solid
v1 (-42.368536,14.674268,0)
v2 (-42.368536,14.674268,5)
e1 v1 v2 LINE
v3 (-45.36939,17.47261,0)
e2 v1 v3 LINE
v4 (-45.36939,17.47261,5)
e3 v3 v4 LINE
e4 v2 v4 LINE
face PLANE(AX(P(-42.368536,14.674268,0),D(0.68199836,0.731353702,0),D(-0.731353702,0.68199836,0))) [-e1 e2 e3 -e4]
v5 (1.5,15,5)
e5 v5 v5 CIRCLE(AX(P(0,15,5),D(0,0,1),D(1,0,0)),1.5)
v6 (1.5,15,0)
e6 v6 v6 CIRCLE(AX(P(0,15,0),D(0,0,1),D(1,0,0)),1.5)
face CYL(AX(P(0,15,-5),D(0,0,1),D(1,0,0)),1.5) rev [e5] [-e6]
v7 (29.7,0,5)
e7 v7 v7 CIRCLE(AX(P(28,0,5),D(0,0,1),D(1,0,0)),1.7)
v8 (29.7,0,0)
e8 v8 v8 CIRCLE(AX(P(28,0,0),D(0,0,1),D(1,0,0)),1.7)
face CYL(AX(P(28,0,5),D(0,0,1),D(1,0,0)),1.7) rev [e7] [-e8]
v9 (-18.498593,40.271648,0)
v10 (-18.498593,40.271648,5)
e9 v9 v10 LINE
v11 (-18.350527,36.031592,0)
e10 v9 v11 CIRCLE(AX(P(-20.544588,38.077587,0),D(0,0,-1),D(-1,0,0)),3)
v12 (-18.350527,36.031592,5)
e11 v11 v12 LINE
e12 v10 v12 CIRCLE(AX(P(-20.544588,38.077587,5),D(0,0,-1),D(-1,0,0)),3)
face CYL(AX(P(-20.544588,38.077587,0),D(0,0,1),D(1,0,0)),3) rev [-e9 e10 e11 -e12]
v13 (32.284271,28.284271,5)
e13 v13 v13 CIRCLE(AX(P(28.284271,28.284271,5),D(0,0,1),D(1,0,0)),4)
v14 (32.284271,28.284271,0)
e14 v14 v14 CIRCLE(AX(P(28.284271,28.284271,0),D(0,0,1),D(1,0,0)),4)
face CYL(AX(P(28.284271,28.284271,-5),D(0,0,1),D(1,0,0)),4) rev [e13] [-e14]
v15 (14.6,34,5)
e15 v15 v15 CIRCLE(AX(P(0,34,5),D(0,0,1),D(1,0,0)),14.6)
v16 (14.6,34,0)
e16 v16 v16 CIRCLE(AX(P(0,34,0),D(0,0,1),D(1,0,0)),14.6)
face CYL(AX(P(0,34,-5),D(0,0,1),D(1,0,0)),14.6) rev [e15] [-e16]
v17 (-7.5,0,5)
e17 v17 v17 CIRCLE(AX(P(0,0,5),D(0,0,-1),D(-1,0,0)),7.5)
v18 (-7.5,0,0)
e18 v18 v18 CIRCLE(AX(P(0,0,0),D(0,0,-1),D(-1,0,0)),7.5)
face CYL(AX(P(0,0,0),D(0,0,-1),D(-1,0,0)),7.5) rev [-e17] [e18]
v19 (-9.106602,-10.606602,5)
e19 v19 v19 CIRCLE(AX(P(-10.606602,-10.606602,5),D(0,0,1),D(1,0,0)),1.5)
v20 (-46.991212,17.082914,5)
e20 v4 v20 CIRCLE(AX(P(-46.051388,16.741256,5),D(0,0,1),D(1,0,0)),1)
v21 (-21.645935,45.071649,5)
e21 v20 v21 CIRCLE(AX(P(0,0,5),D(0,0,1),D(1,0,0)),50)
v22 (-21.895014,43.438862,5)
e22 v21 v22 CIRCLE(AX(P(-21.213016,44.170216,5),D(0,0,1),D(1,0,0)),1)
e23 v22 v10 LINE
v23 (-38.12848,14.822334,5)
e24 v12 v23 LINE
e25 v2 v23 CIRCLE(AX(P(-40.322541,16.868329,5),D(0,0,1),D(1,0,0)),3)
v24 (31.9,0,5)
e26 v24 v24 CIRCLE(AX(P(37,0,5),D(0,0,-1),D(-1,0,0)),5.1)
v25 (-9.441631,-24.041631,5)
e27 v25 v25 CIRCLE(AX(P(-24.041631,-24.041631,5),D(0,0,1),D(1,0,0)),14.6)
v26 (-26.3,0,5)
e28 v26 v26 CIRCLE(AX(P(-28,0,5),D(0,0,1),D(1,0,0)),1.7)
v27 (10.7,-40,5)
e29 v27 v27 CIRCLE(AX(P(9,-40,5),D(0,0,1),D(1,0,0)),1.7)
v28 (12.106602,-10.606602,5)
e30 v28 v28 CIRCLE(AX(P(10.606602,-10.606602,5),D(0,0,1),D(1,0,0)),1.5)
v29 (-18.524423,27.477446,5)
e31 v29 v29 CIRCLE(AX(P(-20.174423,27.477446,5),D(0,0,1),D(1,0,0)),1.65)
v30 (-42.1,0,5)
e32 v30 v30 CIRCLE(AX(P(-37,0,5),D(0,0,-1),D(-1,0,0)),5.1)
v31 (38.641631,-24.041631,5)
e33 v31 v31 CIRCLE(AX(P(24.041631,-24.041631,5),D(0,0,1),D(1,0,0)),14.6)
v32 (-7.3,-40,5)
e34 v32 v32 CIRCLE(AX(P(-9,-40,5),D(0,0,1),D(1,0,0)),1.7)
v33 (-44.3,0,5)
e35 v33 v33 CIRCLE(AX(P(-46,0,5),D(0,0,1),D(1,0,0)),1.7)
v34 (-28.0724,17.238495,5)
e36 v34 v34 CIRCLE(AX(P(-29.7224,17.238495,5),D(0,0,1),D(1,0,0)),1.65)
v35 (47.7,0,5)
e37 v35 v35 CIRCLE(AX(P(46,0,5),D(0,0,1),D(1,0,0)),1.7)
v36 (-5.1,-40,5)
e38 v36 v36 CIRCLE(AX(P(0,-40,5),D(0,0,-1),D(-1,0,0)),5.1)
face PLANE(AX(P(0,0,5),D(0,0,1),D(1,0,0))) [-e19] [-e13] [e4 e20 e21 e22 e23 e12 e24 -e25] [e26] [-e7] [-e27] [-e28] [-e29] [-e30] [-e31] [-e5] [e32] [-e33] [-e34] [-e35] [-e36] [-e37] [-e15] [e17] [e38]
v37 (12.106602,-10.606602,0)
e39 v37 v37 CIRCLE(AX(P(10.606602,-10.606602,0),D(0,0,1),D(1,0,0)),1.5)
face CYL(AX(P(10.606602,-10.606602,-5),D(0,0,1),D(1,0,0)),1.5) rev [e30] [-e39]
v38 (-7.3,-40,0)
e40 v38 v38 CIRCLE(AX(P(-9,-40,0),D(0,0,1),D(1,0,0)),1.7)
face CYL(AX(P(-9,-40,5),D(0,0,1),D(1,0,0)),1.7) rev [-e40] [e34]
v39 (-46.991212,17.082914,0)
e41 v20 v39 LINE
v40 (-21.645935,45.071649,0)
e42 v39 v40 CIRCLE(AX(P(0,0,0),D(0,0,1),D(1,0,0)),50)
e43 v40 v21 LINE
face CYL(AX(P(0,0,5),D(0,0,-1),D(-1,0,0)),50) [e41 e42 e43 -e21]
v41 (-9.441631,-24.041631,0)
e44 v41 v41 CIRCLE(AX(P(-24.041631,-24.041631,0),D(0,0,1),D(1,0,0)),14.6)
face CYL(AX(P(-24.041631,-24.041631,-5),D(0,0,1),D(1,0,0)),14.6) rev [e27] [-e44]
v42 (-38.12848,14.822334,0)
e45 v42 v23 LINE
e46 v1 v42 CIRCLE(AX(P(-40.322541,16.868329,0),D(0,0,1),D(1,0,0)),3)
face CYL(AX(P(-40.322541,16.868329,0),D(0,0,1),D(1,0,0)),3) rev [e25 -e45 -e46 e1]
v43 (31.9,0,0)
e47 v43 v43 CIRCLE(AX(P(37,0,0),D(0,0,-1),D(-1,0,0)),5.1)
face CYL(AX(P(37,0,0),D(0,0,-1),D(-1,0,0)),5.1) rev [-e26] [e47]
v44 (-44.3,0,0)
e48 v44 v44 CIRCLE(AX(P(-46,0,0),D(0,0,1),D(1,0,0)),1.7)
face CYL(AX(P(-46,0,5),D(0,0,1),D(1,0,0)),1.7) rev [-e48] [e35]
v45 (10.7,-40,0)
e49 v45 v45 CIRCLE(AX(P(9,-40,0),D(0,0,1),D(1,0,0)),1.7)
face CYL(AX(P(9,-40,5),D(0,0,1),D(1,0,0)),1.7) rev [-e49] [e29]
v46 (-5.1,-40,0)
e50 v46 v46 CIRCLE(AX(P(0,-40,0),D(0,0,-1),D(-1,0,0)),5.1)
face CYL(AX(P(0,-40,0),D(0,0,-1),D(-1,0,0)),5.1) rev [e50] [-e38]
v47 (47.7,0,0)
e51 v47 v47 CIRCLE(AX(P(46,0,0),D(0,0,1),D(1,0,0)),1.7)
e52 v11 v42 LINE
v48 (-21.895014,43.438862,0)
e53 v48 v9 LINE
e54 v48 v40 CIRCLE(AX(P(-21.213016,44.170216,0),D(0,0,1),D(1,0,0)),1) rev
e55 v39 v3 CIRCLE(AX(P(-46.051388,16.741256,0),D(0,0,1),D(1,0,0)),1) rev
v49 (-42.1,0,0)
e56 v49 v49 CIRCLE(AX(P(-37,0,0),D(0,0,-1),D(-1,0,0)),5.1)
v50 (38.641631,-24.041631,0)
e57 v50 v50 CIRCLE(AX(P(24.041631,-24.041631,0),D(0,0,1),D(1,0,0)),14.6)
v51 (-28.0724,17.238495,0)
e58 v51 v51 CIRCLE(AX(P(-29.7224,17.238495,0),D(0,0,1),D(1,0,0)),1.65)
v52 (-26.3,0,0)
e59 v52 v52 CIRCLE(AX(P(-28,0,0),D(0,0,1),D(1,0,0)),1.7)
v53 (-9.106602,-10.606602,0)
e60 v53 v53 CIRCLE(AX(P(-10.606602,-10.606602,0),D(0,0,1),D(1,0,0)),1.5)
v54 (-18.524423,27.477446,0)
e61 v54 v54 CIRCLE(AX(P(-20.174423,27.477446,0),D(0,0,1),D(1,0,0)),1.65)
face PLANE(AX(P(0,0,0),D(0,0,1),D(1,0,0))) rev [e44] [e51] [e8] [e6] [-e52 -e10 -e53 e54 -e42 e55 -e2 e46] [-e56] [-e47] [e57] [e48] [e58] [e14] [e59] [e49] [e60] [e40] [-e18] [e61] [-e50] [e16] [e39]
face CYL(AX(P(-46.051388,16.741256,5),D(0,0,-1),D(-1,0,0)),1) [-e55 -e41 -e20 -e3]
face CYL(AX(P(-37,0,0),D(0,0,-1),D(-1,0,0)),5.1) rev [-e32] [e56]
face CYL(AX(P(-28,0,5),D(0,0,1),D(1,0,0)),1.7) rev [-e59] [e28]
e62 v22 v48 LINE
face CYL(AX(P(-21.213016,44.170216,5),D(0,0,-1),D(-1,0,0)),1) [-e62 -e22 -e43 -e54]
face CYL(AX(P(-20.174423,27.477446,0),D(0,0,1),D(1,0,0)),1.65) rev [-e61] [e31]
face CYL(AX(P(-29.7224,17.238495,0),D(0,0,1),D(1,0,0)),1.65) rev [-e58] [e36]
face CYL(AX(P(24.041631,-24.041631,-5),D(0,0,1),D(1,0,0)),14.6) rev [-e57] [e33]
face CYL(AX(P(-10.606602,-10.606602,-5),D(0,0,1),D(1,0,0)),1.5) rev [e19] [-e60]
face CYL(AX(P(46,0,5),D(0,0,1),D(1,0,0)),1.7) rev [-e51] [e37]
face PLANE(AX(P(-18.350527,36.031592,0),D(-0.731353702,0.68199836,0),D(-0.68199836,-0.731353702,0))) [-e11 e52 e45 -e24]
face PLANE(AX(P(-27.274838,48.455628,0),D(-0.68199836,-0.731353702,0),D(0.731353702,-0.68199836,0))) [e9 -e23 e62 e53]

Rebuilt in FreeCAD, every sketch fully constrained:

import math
import FreeCAD as App
import Part
import Sketcher
Q = App.Units.Quantity


def edges_at(feature, points):
    """Names of the edges that pass closest to the given points."""
    edges = feature.Shape.Edges
    near = lambda p: min(range(len(edges)), key=lambda i: edges[i].distToShape(Part.Vertex(*p))[0])
    return sorted({f"Edge{near(p) + 1}" for p in points})

doc = App.newDocument("Part")
params = doc.addObject("Spreadsheet::Sheet", "Params")
for row, (alias, value) in enumerate([
    ("sketch1_diameter", "100 mm"),
    ("pad1_length", "5 mm"),
    ("sketch2_diameter", "15 mm"),
    ("hole_diameter", "15 mm"),
    ("sketch3_diameter", "10.2 mm"),
    ("hole2_diameter", "10.2 mm"),
    ("sketch4_diameter", "3.4 mm"),
    ("hole3_diameter", "3.4 mm"),
    ("sketch5_diameter", "3 mm"),
    ("sketch5_diameter2", "29.2 mm"),
    ("pocket1_length", "10 mm"),
    ("sketch6_radius", "3 mm"),
    ("sketch6_diameter", "3.3 mm"),
    ("sketch6_length", "12 mm"),
    ("sketch6_length2", "35 mm"),
    ("pocket2_length", "5 mm"),
    ("sketch7_diameter", "8 mm"),
    ("pocket3_length", "10 mm"),
    ("fillet_radius", "1 mm"),
], start=1):
    params.set(f"A{row}", alias)
    params.set(f"B{row}", "=" + value)
    params.setAlias(f"B{row}", alias)

body = doc.addObject("PartDesign::Body", "Body")

sketch1 = body.newObject("Sketcher::SketchObject", "Sketch")
sketch1.AttachmentSupport = (doc.getObject("XY_Plane"), [""])
sketch1.MapMode = "FlatFace"
sketch1.addGeometry(Part.Circle(App.Vector(0, 0, 0), App.Vector(0, 0, 1), 50), False)
sketch1.addConstraint(Sketcher.Constraint("Coincident", 0, 3, -1, 1))
sketch1.addConstraint(Sketcher.Constraint("Diameter", 0, Q("100 mm")))
sketch1.setExpression("Constraints[1]", "Params.sketch1_diameter")
pad1 = body.newObject("PartDesign::Pad", "Pad")
pad1.Profile = sketch1
pad1.setExpression("Length", "Params.pad1_length")

sketch2 = body.newObject("Sketcher::SketchObject", "Sketch001")
sketch2.AttachmentSupport = (doc.getObject("XY_Plane"), [""])
sketch2.MapMode = "FlatFace"
sketch2.addGeometry(Part.Circle(App.Vector(0, 0, 0), App.Vector(0, 0, 1), 8), False)
sketch2.addConstraint(Sketcher.Constraint("Coincident", 0, 3, -1, 1))
sketch2.addConstraint(Sketcher.Constraint("Diameter", 0, Q("15 mm")))
sketch2.setExpression("Constraints[1]", "Params.sketch2_diameter")
doc.recompute()
hole = body.newObject("PartDesign::Hole", "Hole")
hole.Profile = sketch2
hole.ThreadType = "None"
hole.setExpression("Diameter", "Params.hole_diameter")
hole.DepthType = "ThroughAll"
hole.Reversed = True

sketch3 = body.newObject("Sketcher::SketchObject", "Sketch002")
sketch3.AttachmentSupport = (doc.getObject("XY_Plane"), [""])
sketch3.MapMode = "FlatFace"
sketch3.addGeometry(Part.Circle(App.Vector(-37, 0, 0), App.Vector(0, 0, 1), 5), False)
sketch3.addGeometry(Part.Circle(App.Vector(37, 0, 0), App.Vector(0, 0, 1), 5), False)
sketch3.addGeometry(Part.Circle(App.Vector(0, -40, 0), App.Vector(0, 0, 1), 5), False)
sketch3.addConstraint(Sketcher.Constraint("Equal", 0, 1))
sketch3.addConstraint(Sketcher.Constraint("Equal", 1, 2))
sketch3.addConstraint(Sketcher.Constraint("Symmetric", 0, 3, 1, 3, -1, 1))
sketch3.addConstraint(Sketcher.Constraint("PointOnObject", 0, 3, -1))
sketch3.addConstraint(Sketcher.Constraint("PointOnObject", 2, 3, -2))
sketch3.addConstraint(Sketcher.Constraint("Diameter", 0, Q("10.2 mm")))
sketch3.addConstraint(Sketcher.Constraint("DistanceX", 0, 3, -1, 1, Q("37 mm")))
sketch3.addConstraint(Sketcher.Constraint("DistanceY", 2, 3, -1, 1, Q("40 mm")))
sketch3.setExpression("Constraints[5]", "Params.sketch3_diameter")
doc.recompute()
hole2 = body.newObject("PartDesign::Hole", "Hole001")
hole2.Profile = sketch3
hole2.ThreadType = "None"
hole2.setExpression("Diameter", "Params.hole2_diameter")
hole2.DepthType = "ThroughAll"
hole2.Reversed = True

sketch4 = body.newObject("Sketcher::SketchObject", "Sketch003")
sketch4.AttachmentSupport = (doc.getObject("XY_Plane"), [""])
sketch4.MapMode = "FlatFace"
sketch4.AttachmentOffset = App.Placement(App.Vector(0, 0, 5), App.Rotation())
sketch4.addGeometry(Part.Circle(App.Vector(46, 0, 0), App.Vector(0, 0, 1), 1.7), False)
sketch4.addGeometry(Part.Circle(App.Vector(28, 0, 0), App.Vector(0, 0, 1), 1.7), False)
sketch4.addGeometry(Part.Circle(App.Vector(9, -40, 0), App.Vector(0, 0, 1), 1.7), False)
sketch4.addGeometry(Part.Circle(App.Vector(-9, -40, 0), App.Vector(0, 0, 1), 1.7), False)
sketch4.addGeometry(Part.Circle(App.Vector(-46, 0, 0), App.Vector(0, 0, 1), 1.7), False)
sketch4.addGeometry(Part.Circle(App.Vector(-28, 0, 0), App.Vector(0, 0, 1), 1.7), False)
sketch4.addConstraint(Sketcher.Constraint("Equal", 0, 1))
sketch4.addConstraint(Sketcher.Constraint("Equal", 1, 2))
sketch4.addConstraint(Sketcher.Constraint("Equal", 2, 3))
sketch4.addConstraint(Sketcher.Constraint("Equal", 3, 4))
sketch4.addConstraint(Sketcher.Constraint("Equal", 4, 5))
sketch4.addConstraint(Sketcher.Constraint("Symmetric", 0, 3, 4, 3, -1, 1))
sketch4.addConstraint(Sketcher.Constraint("Symmetric", 1, 3, 5, 3, -1, 1))
sketch4.addConstraint(Sketcher.Constraint("Symmetric", 2, 3, 3, 3, -2))
sketch4.addConstraint(Sketcher.Constraint("PointOnObject", 0, 3, -1))
sketch4.addConstraint(Sketcher.Constraint("PointOnObject", 1, 3, -1))
sketch4.addConstraint(Sketcher.Constraint("Diameter", 0, Q("3.4 mm")))
sketch4.addConstraint(Sketcher.Constraint("DistanceX", -1, 1, 0, 3, Q("46 mm")))
sketch4.addConstraint(Sketcher.Constraint("DistanceX", -1, 1, 1, 3, Q("28 mm")))
sketch4.addConstraint(Sketcher.Constraint("DistanceX", -1, 1, 2, 3, Q("9 mm")))
sketch4.addConstraint(Sketcher.Constraint("DistanceY", 2, 3, -1, 1, Q("40 mm")))
sketch4.setExpression("Constraints[10]", "Params.sketch4_diameter")
doc.recompute()
hole3 = body.newObject("PartDesign::Hole", "Hole002")
hole3.Profile = sketch4
hole3.ThreadType = "None"
hole3.setExpression("Diameter", "Params.hole3_diameter")
hole3.DepthType = "ThroughAll"

sketch5 = body.newObject("Sketcher::SketchObject", "Sketch004")
sketch5.AttachmentSupport = (doc.getObject("XY_Plane"), [""])
sketch5.MapMode = "FlatFace"
sketch5.AttachmentOffset = App.Placement(App.Vector(0, 0, 5), App.Rotation())
sketch5.addGeometry(Part.Circle(App.Vector(24, -24, 0), App.Vector(0, 0, 1), 14.6), False)
sketch5.addGeometry(Part.Circle(App.Vector(10.6, -10.6, 0), App.Vector(0, 0, 1), 1.5), False)
sketch5.addGeometry(Part.Circle(App.Vector(-24, -24, 0), App.Vector(0, 0, 1), 14.6), False)
sketch5.addGeometry(Part.Circle(App.Vector(-10.6, -10.6, 0), App.Vector(0, 0, 1), 1.5), False)
sketch5.addGeometry(Part.Circle(App.Vector(0, 34, 0), App.Vector(0, 0, 1), 14.6), False)
sketch5.addGeometry(Part.Circle(App.Vector(0, 15, 0), App.Vector(0, 0, 1), 1.5), False)
sketch5.addConstraint(Sketcher.Constraint("Equal", 0, 2))
sketch5.addConstraint(Sketcher.Constraint("Equal", 1, 3))
sketch5.addConstraint(Sketcher.Constraint("Equal", 2, 4))
sketch5.addConstraint(Sketcher.Constraint("Equal", 3, 5))
sketch5.addConstraint(Sketcher.Constraint("Symmetric", 0, 3, 2, 3, -2))
sketch5.addConstraint(Sketcher.Constraint("Symmetric", 1, 3, 3, 3, -2))
sketch5.addConstraint(Sketcher.Constraint("PointOnObject", 4, 3, -2))
sketch5.addConstraint(Sketcher.Constraint("PointOnObject", 5, 3, -2))
sketch5.addConstraint(Sketcher.Constraint("Diameter", 1, Q("3 mm")))
sketch5.addConstraint(Sketcher.Constraint("Diameter", 0, Q("29.2 mm")))
sketch5.addConstraint(Sketcher.Constraint("DistanceY", -1, 1, 4, 3, Q("34 mm")))
sketch5.addConstraint(Sketcher.Constraint("DistanceY", -1, 1, 5, 3, Q("15 mm")))
sketch5.addConstraint(Sketcher.Constraint("DistanceX", -1, 1, 1, 3, Q("10.606602 mm")))
sketch5.addConstraint(Sketcher.Constraint("DistanceY", 1, 3, -1, 1, Q("10.606602 mm")))
sketch5.addConstraint(Sketcher.Constraint("DistanceX", -1, 1, 0, 3, Q("24.041631 mm")))
sketch5.addConstraint(Sketcher.Constraint("DistanceY", 0, 3, -1, 1, Q("24.041631 mm")))
sketch5.setExpression("Constraints[8]", "Params.sketch5_diameter")
sketch5.setExpression("Constraints[9]", "Params.sketch5_diameter2")
pocket1 = body.newObject("PartDesign::Pocket", "Pocket")
pocket1.Profile = sketch5
pocket1.setExpression("Length", "Params.pocket1_length")

sketch6 = body.newObject("Sketcher::SketchObject", "Sketch005")
sketch6.AttachmentSupport = (doc.getObject("XY_Plane"), [""])
sketch6.MapMode = "FlatFace"
sketch6.AttachmentOffset = App.Placement(App.Vector(0, 0, 5), App.Rotation())
sketch6.addGeometry(Part.Circle(App.Vector(-20.2, 27.5, 0), App.Vector(0, 0, 1), 1.6), False)
sketch6.addGeometry(Part.Circle(App.Vector(-29.7, 17.2, 0), App.Vector(0, 0, 1), 1.6), False)
sketch6.addGeometry(Part.LineSegment(App.Vector(-18.5, 40.3, 0), App.Vector(-27.3, 48.5, 0)), False)
sketch6.addGeometry(Part.LineSegment(App.Vector(-27.3, 48.5, 0), App.Vector(-51.1, 22.9, 0)), False)
sketch6.addGeometry(Part.LineSegment(App.Vector(-51.1, 22.9, 0), App.Vector(-42.4, 14.7, 0)), False)
sketch6.addGeometry(Part.ArcOfCircle(Part.Circle(App.Vector(-40.3, 16.9, 0), App.Vector(0, 0, 1), 3), math.radians(-133), math.radians(-43)), False)
sketch6.addGeometry(Part.LineSegment(App.Vector(-38.1, 14.8, 0), App.Vector(-18.4, 36, 0)), False)
sketch6.addGeometry(Part.ArcOfCircle(Part.Circle(App.Vector(-20.5, 38.1, 0), App.Vector(0, 0, 1), 3), math.radians(-43), math.radians(47)), False)
sketch6.addConstraint(Sketcher.Constraint("Coincident", 2, 2, 3, 1))
sketch6.addConstraint(Sketcher.Constraint("Coincident", 3, 2, 4, 1))
sketch6.addConstraint(Sketcher.Constraint("Tangent", 4, 2, 5, 1))
sketch6.addConstraint(Sketcher.Constraint("Tangent", 5, 2, 6, 1))
sketch6.addConstraint(Sketcher.Constraint("Tangent", 6, 2, 7, 1))
sketch6.addConstraint(Sketcher.Constraint("Tangent", 7, 2, 2, 1))
sketch6.addConstraint(Sketcher.Constraint("Equal", 0, 1))
sketch6.addConstraint(Sketcher.Constraint("Equal", 5, 7))
sketch6.addConstraint(Sketcher.Constraint("Perpendicular", 2, 3))
sketch6.addConstraint(Sketcher.Constraint("Perpendicular", 3, 4))
sketch6.addConstraint(Sketcher.Constraint("Perpendicular", 4, 6))
sketch6.addConstraint(Sketcher.Constraint("Radius", 5, Q("3 mm")))
sketch6.addConstraint(Sketcher.Constraint("Diameter", 0, Q("3.3 mm")))
sketch6.addConstraint(Sketcher.Constraint("Angle", 2, Q("137 deg")))
sketch6.addConstraint(Sketcher.Constraint("Distance", 2, Q("12 mm")))
sketch6.addConstraint(Sketcher.Constraint("Distance", 3, Q("35 mm")))
sketch6.addConstraint(Sketcher.Constraint("DistanceX", 1, 3, -1, 1, Q("29.7224 mm")))
sketch6.addConstraint(Sketcher.Constraint("DistanceY", 0, 3, 7, 2, Q("12.794202 mm")))
sketch6.addConstraint(Sketcher.Constraint("DistanceX", 5, 3, -1, 1, Q("40.322541 mm")))
sketch6.addConstraint(Sketcher.Constraint("DistanceY", -1, 1, 5, 3, Q("16.868329 mm")))
sketch6.addConstraint(Sketcher.Constraint("DistanceY", 1, 3, 0, 3, Q("10.238952 mm")))
sketch6.addConstraint(Sketcher.Constraint("DistanceX", 0, 3, 7, 2, Q("1.67583 mm")))
sketch6.setExpression("Constraints[11]", "Params.sketch6_radius")
sketch6.setExpression("Constraints[12]", "Params.sketch6_diameter")
sketch6.setExpression("Constraints[14]", "Params.sketch6_length")
sketch6.setExpression("Constraints[15]", "Params.sketch6_length2")
pocket2 = body.newObject("PartDesign::Pocket", "Pocket001")
pocket2.Profile = sketch6
pocket2.setExpression("Length", "Params.pocket2_length")

sketch7 = body.newObject("Sketcher::SketchObject", "Sketch006")
sketch7.AttachmentSupport = (doc.getObject("XY_Plane"), [""])
sketch7.MapMode = "FlatFace"
sketch7.AttachmentOffset = App.Placement(App.Vector(0, 0, 5), App.Rotation())
sketch7.addGeometry(Part.Circle(App.Vector(28.3, 28.3, 0), App.Vector(0, 0, 1), 4), False)
sketch7.addConstraint(Sketcher.Constraint("Diameter", 0, Q("8 mm")))
sketch7.addConstraint(Sketcher.Constraint("DistanceX", -1, 1, 0, 3, Q("28.284271 mm")))
sketch7.addConstraint(Sketcher.Constraint("DistanceY", -1, 1, 0, 3, Q("28.284271 mm")))
sketch7.setExpression("Constraints[0]", "Params.sketch7_diameter")
pocket3 = body.newObject("PartDesign::Pocket", "Pocket002")
pocket3.Profile = sketch7
pocket3.setExpression("Length", "Params.pocket3_length")
doc.recompute()

fillet = body.newObject("PartDesign::Fillet", "Fillet")
fillet.Base = (pocket3, edges_at(pocket3, [(-46.457, 18.487, 2.5), (-22.949, 44.422, 2.5)]))
fillet.setExpression("Radius", "Params.fillet_radius")

doc.recompute()
